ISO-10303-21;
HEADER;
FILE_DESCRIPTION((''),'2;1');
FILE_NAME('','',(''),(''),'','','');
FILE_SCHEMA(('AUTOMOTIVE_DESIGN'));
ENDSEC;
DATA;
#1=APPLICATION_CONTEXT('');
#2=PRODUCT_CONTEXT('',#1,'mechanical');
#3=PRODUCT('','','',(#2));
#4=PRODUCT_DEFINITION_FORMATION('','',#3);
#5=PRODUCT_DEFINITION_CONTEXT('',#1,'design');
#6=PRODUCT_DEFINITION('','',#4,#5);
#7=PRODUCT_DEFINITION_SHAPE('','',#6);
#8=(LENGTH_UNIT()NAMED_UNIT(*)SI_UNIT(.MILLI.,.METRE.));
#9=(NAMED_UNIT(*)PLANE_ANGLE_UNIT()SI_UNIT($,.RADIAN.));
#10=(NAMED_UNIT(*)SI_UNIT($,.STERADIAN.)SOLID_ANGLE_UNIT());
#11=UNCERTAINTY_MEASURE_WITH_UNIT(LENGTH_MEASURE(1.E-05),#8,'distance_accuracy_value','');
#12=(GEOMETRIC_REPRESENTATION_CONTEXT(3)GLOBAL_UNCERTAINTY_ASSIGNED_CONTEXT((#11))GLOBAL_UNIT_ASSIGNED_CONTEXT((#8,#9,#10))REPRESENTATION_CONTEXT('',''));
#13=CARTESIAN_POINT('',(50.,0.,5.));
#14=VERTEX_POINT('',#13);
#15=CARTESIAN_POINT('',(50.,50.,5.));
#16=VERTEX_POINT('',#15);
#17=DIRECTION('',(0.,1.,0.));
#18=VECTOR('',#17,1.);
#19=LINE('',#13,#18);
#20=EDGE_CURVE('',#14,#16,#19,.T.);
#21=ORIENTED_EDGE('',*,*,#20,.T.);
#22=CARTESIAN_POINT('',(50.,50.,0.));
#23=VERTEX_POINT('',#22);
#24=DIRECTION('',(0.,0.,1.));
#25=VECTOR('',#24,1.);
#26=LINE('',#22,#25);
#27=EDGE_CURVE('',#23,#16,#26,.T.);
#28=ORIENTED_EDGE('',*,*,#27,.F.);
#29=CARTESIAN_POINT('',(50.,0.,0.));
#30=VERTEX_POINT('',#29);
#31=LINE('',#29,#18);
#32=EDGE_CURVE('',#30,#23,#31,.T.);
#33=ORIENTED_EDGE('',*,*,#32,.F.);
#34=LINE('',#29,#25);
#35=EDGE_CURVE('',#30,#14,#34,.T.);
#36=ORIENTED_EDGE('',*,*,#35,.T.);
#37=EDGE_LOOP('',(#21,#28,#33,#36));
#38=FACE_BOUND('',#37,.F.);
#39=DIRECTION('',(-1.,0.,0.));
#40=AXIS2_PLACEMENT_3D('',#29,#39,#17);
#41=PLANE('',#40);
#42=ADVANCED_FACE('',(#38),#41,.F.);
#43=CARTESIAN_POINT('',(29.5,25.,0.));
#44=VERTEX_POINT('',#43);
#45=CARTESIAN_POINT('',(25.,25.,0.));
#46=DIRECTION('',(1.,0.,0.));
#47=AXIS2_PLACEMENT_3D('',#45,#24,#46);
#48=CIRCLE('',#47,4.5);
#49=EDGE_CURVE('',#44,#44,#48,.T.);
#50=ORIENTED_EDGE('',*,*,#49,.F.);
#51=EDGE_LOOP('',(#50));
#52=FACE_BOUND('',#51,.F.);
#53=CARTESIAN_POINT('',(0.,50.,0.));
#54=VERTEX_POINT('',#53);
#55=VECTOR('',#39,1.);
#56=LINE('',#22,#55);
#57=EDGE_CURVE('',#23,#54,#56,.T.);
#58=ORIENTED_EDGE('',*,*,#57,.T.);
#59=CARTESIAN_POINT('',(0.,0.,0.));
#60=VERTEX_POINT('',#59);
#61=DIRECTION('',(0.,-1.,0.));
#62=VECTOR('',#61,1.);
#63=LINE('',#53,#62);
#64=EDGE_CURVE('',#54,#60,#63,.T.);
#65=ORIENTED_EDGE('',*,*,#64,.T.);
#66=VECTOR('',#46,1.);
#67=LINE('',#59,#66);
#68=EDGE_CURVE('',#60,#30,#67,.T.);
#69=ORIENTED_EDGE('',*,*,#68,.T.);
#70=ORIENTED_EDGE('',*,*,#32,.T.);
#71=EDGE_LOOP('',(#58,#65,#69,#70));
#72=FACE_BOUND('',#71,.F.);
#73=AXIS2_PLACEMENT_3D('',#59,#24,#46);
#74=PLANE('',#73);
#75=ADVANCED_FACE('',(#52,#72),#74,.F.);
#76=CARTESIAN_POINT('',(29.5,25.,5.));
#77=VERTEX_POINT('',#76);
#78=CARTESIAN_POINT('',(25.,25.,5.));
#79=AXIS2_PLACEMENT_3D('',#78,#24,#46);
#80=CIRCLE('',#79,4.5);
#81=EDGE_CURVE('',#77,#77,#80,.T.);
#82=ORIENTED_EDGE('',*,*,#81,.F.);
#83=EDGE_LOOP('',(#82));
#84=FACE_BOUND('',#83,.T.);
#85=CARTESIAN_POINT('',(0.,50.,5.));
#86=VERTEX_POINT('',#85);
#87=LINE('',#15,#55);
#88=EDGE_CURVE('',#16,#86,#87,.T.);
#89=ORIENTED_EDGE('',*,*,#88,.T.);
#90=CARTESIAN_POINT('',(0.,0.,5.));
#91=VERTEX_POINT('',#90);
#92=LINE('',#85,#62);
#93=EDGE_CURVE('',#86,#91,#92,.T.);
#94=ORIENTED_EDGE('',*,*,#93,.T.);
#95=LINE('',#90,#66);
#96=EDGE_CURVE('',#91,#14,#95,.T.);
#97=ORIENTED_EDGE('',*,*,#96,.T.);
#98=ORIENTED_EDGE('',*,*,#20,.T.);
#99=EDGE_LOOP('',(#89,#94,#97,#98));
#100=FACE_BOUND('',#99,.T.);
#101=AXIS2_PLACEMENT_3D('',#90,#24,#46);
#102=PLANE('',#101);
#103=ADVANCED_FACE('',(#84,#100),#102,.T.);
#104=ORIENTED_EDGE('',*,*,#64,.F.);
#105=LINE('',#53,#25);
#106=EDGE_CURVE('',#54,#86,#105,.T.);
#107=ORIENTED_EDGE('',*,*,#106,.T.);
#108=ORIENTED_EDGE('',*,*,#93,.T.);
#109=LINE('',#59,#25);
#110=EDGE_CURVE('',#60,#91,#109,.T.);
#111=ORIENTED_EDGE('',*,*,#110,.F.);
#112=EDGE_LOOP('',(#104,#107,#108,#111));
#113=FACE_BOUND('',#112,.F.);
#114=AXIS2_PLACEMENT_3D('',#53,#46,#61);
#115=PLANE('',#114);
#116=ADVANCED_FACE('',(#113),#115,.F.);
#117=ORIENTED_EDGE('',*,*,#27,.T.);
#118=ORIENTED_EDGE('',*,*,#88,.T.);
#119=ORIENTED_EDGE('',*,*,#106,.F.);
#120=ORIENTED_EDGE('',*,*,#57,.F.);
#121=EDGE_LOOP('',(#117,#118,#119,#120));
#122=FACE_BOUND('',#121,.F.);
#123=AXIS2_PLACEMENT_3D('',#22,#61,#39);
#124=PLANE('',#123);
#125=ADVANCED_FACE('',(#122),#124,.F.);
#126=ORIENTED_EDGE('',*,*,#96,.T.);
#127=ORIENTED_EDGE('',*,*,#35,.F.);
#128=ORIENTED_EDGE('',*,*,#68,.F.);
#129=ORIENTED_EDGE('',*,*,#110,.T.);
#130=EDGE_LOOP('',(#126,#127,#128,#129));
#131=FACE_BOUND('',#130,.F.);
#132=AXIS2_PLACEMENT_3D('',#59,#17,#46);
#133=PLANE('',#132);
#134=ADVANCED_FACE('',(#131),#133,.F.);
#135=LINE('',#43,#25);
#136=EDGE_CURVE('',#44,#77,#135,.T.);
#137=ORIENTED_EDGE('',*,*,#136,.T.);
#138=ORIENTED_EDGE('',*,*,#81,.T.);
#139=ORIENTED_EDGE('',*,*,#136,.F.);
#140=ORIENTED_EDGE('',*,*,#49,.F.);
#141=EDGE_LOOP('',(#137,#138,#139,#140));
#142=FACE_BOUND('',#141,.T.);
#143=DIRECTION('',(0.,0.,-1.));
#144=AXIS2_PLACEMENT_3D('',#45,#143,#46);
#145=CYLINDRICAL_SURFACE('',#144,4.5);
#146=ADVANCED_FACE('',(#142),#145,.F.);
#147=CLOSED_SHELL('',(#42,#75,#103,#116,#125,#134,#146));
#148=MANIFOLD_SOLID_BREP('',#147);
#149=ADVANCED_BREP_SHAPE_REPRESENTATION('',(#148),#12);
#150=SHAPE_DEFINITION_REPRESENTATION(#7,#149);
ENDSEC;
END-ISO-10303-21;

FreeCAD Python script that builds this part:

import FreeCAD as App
import Part
import Sketcher
from FreeCAD import Vector


def add_polygon(sketch, points):
    """Adds a closed chain of lines whose ends are joined by coincident constraints."""
    first, n = sketch.GeometryCount, len(points)
    for a, b in zip(points, points[1:] + points[:1]):
        sketch.addGeometry(Part.LineSegment(App.Vector(*a, 0), App.Vector(*b, 0)), False)
    for i in range(n):
        sketch.addConstraint(Sketcher.Constraint("Coincident", first + i, 2, first + (i + 1) % n, 1))

doc = App.newDocument("Part")
body = doc.addObject("PartDesign::Body", "Body")

sketch1 = body.newObject("Sketcher::SketchObject", "Sketch")
sketch1.AttachmentSupport = (doc.getObject("XY_Plane"), [""])
sketch1.MapMode = "FlatFace"
add_polygon(sketch1, [(0, 50), (0, 0), (50, 0), (50, 50)])
sketch1.addGeometry(Part.Circle(Vector(25, 25, 0), Vector(0, 0, 1), 4.5), False)
sketch1.addConstraint([
    Sketcher.Constraint("Vertical", 0),
    Sketcher.Constraint("Horizontal", 1),
    Sketcher.Constraint("Vertical", 2),
    Sketcher.Constraint("Horizontal", 3),
    Sketcher.Constraint("Coincident", 0, 2, -1, 1),
    Sketcher.Constraint("Equal", 3, 0),
    Sketcher.Constraint("Diameter", 4, 9.0),
    Sketcher.Constraint("DistanceX", 1, 1, 1, 2, 50.0),
    Sketcher.Constraint("DistanceX", -1, 1, 4, 3, 25.0),
    Sketcher.Constraint("DistanceY", -1, 1, 4, 3, 25.0),
])
pad1 = body.newObject("PartDesign::Pad", "Pad")
pad1.Profile = sketch1
pad1.Length = 5

doc.recompute()
